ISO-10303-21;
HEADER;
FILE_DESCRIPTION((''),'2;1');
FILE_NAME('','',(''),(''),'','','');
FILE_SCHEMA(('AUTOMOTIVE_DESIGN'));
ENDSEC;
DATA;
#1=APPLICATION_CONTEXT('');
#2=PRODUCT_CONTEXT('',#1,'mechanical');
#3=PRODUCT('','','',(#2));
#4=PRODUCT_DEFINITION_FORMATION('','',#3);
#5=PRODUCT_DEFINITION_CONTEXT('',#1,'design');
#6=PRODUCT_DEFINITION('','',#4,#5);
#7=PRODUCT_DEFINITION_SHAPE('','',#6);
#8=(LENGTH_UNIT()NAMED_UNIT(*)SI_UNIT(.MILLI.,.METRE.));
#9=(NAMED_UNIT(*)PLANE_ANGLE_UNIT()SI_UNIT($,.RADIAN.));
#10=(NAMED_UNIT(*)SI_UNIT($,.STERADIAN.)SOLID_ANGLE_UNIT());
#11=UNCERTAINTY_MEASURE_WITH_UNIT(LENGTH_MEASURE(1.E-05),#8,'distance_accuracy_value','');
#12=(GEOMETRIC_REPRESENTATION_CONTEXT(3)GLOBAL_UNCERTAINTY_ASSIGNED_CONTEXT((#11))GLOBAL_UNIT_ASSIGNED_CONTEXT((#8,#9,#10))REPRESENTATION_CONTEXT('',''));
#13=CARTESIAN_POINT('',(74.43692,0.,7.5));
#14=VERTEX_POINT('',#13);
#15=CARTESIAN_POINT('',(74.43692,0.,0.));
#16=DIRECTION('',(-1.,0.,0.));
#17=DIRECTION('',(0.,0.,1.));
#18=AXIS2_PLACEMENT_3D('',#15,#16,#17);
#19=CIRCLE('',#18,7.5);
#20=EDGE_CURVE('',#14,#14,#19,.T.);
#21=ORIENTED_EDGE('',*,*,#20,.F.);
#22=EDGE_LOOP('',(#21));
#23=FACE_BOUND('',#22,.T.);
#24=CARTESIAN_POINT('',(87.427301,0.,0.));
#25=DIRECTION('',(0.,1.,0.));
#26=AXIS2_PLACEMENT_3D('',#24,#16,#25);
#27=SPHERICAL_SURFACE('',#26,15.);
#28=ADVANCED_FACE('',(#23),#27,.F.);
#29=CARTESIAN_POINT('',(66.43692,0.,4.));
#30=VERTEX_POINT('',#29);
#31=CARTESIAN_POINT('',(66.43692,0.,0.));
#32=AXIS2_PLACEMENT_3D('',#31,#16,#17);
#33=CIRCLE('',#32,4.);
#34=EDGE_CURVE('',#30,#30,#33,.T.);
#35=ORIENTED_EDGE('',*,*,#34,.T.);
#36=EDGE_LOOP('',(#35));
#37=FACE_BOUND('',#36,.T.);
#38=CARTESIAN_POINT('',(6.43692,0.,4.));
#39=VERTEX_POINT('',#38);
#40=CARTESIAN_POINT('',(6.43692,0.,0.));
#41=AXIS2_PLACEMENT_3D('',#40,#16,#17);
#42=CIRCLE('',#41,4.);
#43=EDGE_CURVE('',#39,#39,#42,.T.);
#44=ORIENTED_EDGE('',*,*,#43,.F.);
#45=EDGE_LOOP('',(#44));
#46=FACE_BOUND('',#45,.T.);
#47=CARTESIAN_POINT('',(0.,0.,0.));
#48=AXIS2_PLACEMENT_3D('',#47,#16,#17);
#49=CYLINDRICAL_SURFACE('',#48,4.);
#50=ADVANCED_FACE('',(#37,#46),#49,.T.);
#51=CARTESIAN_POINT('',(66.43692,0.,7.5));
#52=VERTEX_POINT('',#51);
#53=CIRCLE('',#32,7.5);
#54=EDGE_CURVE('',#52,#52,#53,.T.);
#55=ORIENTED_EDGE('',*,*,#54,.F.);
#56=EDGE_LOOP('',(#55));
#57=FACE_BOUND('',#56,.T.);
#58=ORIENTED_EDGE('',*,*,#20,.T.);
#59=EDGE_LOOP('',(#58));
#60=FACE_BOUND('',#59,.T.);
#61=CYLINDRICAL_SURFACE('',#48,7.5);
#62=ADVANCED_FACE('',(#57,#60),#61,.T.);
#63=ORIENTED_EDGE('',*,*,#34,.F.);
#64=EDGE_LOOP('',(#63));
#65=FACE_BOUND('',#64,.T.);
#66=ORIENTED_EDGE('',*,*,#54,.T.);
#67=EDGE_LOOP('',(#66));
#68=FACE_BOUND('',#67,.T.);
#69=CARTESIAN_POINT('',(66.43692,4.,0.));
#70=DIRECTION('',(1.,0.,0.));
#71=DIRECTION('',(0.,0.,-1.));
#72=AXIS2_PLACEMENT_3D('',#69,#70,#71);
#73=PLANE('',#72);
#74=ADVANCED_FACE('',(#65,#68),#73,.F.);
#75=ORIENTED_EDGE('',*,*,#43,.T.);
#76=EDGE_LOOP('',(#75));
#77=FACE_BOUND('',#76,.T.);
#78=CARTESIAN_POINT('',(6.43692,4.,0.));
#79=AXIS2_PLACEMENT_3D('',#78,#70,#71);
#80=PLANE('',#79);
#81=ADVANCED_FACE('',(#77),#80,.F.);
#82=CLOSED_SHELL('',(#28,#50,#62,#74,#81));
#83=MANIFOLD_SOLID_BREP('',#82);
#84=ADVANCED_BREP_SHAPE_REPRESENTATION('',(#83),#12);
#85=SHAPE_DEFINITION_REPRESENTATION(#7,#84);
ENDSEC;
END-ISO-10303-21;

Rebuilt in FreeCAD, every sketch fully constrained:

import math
import FreeCAD as App
import Part
import Sketcher

V = App.Vector
Q = App.Units.Quantity

doc = App.newDocument("Part")
params = doc.addObject("Spreadsheet::Sheet", "Params")
for row, (alias, value) in enumerate([
    ("sketch1_radius", "15 mm"),
    ("sketch1_width", "60 mm"),
    ("sketch1_width2", "8 mm"),
    ("sketch1_height", "4 mm"),
    ("sketch1_height2", "3.5 mm"),
    ("revolution_angle", "360 deg"),
], start=1):
    params.set(f"A{row}", alias)
    params.set(f"B{row}", "=" + value)
    params.setAlias(f"B{row}", alias)

body = doc.addObject("PartDesign::Body", "Body")

# Sketch on XY plane
sketch1 = body.newObject("Sketcher::SketchObject", "Sketch")
sketch1.AttachmentSupport = (doc.getObject("XY_Plane"), [""])
sketch1.MapMode = "FlatFace"
sketch1.addGeometry([
    Part.LineSegment(V(66.4, 7.5, 0), V(66.4, 4, 0)),  # 0
    Part.LineSegment(V(66.4, 4, 0), V(6.4, 4, 0)),  # 1
    Part.LineSegment(V(6.4, 4, 0), V(6.4, 0, 0)),  # 2
    Part.LineSegment(V(6.4, 0, 0), V(72.4, 0, 0)),  # 3
    Part.ArcOfCircle(Part.Circle(V(87.4, 0, 0), V(0, 0, 1), 15), math.radians(150), math.radians(180)),  # 4
    Part.LineSegment(V(74.4, 7.5, 0), V(66.4, 7.5, 0)),  # 5
], False)
sketch1.addConstraint([
    Sketcher.Constraint("Coincident", 0, 2, 1, 1),
    Sketcher.Constraint("Coincident", 1, 2, 2, 1),
    Sketcher.Constraint("Coincident", 2, 2, 3, 1),
    Sketcher.Constraint("Coincident", 3, 2, 4, 2),
    Sketcher.Constraint("Coincident", 4, 1, 5, 1),
    Sketcher.Constraint("Coincident", 5, 2, 0, 1),
    Sketcher.Constraint("Vertical", 0),
    Sketcher.Constraint("Horizontal", 1),
    Sketcher.Constraint("Vertical", 2),
    Sketcher.Constraint("Horizontal", 3),
    Sketcher.Constraint("Horizontal", 5),
    Sketcher.Constraint("PointOnObject", 4, 3, -1),
    Sketcher.Constraint("PointOnObject", 2, 2, -1),
    Sketcher.Constraint("Radius", 4, Q("15 mm")),
    Sketcher.Constraint("DistanceX", 1, 2, 1, 1, Q("60 mm")),
    Sketcher.Constraint("DistanceX", 5, 2, 5, 1, Q("8 mm")),
    Sketcher.Constraint("DistanceY", 2, 2, 2, 1, Q("4 mm")),
    Sketcher.Constraint("DistanceY", 0, 2, 0, 1, Q("3.5 mm")),
    Sketcher.Constraint("DistanceX", -1, 1, 4, 3, Q("87.427301 mm")),
])
sketch1.setExpression("Constraints[13]", "Params.sketch1_radius")
sketch1.setExpression("Constraints[14]", "Params.sketch1_width")
sketch1.setExpression("Constraints[15]", "Params.sketch1_width2")
sketch1.setExpression("Constraints[16]", "Params.sketch1_height")
sketch1.setExpression("Constraints[17]", "Params.sketch1_height2")
revolution = body.newObject("PartDesign::Revolution", "Revolution")
revolution.Profile = sketch1
revolution.ReferenceAxis = (sketch1, ["H_Axis"])
revolution.setExpression("Angle", "Params.revolution_angle")

doc.recompute()
